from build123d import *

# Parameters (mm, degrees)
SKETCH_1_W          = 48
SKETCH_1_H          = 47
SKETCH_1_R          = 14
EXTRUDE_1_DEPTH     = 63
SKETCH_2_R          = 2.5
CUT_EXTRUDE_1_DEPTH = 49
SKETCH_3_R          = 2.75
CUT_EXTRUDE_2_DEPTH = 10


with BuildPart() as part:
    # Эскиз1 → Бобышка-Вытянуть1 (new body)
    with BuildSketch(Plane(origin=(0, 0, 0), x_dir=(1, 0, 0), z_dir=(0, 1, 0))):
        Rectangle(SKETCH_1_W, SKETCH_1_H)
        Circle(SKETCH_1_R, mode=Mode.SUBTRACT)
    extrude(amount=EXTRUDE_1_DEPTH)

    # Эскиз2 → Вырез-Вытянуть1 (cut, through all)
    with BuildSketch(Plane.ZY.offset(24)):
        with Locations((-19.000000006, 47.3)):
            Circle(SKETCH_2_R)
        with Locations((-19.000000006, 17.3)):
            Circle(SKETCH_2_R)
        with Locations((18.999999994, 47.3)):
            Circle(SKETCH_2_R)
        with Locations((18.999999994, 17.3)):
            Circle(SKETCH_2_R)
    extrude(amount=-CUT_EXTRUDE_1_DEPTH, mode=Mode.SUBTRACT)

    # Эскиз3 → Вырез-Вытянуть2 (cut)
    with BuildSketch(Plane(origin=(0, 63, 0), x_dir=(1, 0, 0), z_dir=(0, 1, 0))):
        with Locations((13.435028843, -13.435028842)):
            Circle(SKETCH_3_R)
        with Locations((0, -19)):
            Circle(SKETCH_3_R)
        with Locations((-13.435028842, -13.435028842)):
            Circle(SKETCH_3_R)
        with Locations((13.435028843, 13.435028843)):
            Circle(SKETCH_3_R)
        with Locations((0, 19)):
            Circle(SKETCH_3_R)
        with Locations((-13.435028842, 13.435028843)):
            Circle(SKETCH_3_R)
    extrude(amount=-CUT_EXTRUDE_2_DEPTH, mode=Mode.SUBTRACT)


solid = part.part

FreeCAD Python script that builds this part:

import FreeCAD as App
import Part
import Sketcher
Q = App.Units.Quantity

doc = App.newDocument("Part")
params = doc.addObject("Spreadsheet::Sheet", "Params")
for row, (alias, value) in enumerate([
    ("sketch1_diameter", "28 mm"),
    ("sketch1_width", "48 mm"),
    ("sketch1_height", "47 mm"),
    ("pad1_length", "63 mm"),
    ("sketch2_diameter", "5 mm"),
    ("sketch3_diameter", "5.5 mm"),
    ("pocket2_length", "10 mm"),
], start=1):
    params.set(f"A{row}", alias)
    params.set(f"B{row}", "=" + value)
    params.setAlias(f"B{row}", alias)

body = doc.addObject("PartDesign::Body", "Body")

sketch1 = doc.addObject("Sketcher::SketchObject", "Sketch")
body.addObject(sketch1)
sketch1.AttachmentSupport = (doc.XZ_Plane, [""])
sketch1.MapMode = "FlatFace"
sketch1.addGeometry([
    Part.LineSegment(App.Vector(-24, -24, 0), App.Vector(-24, 24, 0)),
    Part.LineSegment(App.Vector(-24, 24, 0), App.Vector(24, 24, 0)),
    Part.LineSegment(App.Vector(24, 24, 0), App.Vector(24, -24, 0)),
    Part.LineSegment(App.Vector(24, -24, 0), App.Vector(-24, -24, 0)),
    Part.Circle(App.Vector(0, 0, 0), App.Vector(0, 0, 1), 14),
], False)
sketch1.addConstraint([
    Sketcher.Constraint("Coincident", 0, 2, 1, 1),
    Sketcher.Constraint("Coincident", 1, 2, 2, 1),
    Sketcher.Constraint("Coincident", 2, 2, 3, 1),
    Sketcher.Constraint("Coincident", 3, 2, 0, 1),
    Sketcher.Constraint("Vertical", 0),
    Sketcher.Constraint("Horizontal", 1),
    Sketcher.Constraint("Vertical", 2),
    Sketcher.Constraint("Horizontal", 3),
    Sketcher.Constraint("Coincident", 4, 3, -1, 1),
    Sketcher.Constraint("Symmetric", 0, 2, 2, 2, -1, 1),
    Sketcher.Constraint("Diameter", 4, Q("28 mm")),
    Sketcher.Constraint("DistanceX", 1, 1, 1, 2, Q("48 mm")),
    Sketcher.Constraint("DistanceY", 0, 1, 0, 2, Q("47 mm")),
])
sketch1.setExpression("Constraints[10]", "Params.sketch1_diameter")
sketch1.setExpression("Constraints[11]", "Params.sketch1_width")
sketch1.setExpression("Constraints[12]", "Params.sketch1_height")
pad1 = doc.addObject("PartDesign::Pad", "Pad")
body.addObject(pad1)
pad1.Profile = sketch1
pad1.setExpression("Length", "Params.pad1_length")
pad1.Reversed = True

sketch2 = doc.addObject("Sketcher::SketchObject", "Sketch001")
body.addObject(sketch2)
sketch2.AttachmentSupport = (doc.YZ_Plane, [""])
sketch2.MapMode = "FlatFace"
sketch2.AttachmentOffset = App.Placement(App.Vector(0, 0, -24), App.Rotation())
sketch2.addGeometry([
    Part.Circle(App.Vector(47.3, -19, 0), App.Vector(0, 0, 1), 2.5),
    Part.Circle(App.Vector(17.3, -19, 0), App.Vector(0, 0, 1), 2.5),
    Part.Circle(App.Vector(47.3, 19, 0), App.Vector(0, 0, 1), 2.5),
    Part.Circle(App.Vector(17.3, 19, 0), App.Vector(0, 0, 1), 2.5),
], False)
sketch2.addConstraint([
    Sketcher.Constraint("Equal", 0, 1),
    Sketcher.Constraint("Equal", 1, 2),
    Sketcher.Constraint("Equal", 2, 3),
    Sketcher.Constraint("Symmetric", 0, 3, 2, 3, -1),
    Sketcher.Constraint("Symmetric", 1, 3, 3, 3, -1),
    Sketcher.Constraint("Horizontal", 0, 3, 1, 3),
    Sketcher.Constraint("Diameter", 0, Q("5 mm")),
    Sketcher.Constraint("DistanceY", 0, 3, -1, 1, Q("19 mm")),
    Sketcher.Constraint("DistanceX", 1, 3, 0, 3, Q("30 mm")),
    Sketcher.Constraint("DistanceX", -1, 1, 0, 3, Q("47.3 mm")),
])
sketch2.setExpression("Constraints[6]", "Params.sketch2_diameter")
pocket1 = doc.addObject("PartDesign::Pocket", "Pocket")
body.addObject(pocket1)
pocket1.Profile = sketch2
pocket1.Type = "ThroughAll"
pocket1.Reversed = True

sketch3 = doc.addObject("Sketcher::SketchObject", "Sketch002")
body.addObject(sketch3)
sketch3.AttachmentSupport = (doc.XZ_Plane, [""])
sketch3.MapMode = "FlatFace"
sketch3.AttachmentOffset = App.Placement(App.Vector(0, 0, -63), App.Rotation())
sketch3.addGeometry([
    Part.Circle(App.Vector(13.4, 13.4, 0), App.Vector(0, 0, 1), 2.8),
    Part.Circle(App.Vector(0, 19, 0), App.Vector(0, 0, 1), 2.8),
    Part.Circle(App.Vector(-13.4, 13.4, 0), App.Vector(0, 0, 1), 2.8),
    Part.Circle(App.Vector(13.4, -13.4, 0), App.Vector(0, 0, 1), 2.8),
    Part.Circle(App.Vector(0, -19, 0), App.Vector(0, 0, 1), 2.8),
    Part.Circle(App.Vector(-13.4, -13.4, 0), App.Vector(0, 0, 1), 2.8),
], False)
sketch3.addConstraint([
    Sketcher.Constraint("Equal", 0, 1),
    Sketcher.Constraint("Equal", 1, 2),
    Sketcher.Constraint("Equal", 2, 3),
    Sketcher.Constraint("Equal", 3, 4),
    Sketcher.Constraint("Equal", 4, 5),
    Sketcher.Constraint("Symmetric", 2, 3, 3, 3, -1, 1),
    Sketcher.Constraint("Symmetric", 1, 3, 4, 3, -1, 1),
    Sketcher.Constraint("Symmetric", 0, 3, 5, 3, -1, 1),
    Sketcher.Constraint("Symmetric", 0, 3, 2, 3, -2),
    Sketcher.Constraint("PointOnObject", 1, 3, -2),
    Sketcher.Constraint("Diameter", 0, Q("5.5 mm")),
    Sketcher.Constraint("DistanceY", -1, 1, 1, 3, Q("19 mm")),
    Sketcher.Constraint("DistanceX", -1, 1, 0, 3, Q("13.435029 mm")),
    Sketcher.Constraint("DistanceY", -1, 1, 0, 3, Q("13.435029 mm")),
])
sketch3.setExpression("Constraints[10]", "Params.sketch3_diameter")
pocket2 = doc.addObject("PartDesign::Pocket", "Pocket001")
body.addObject(pocket2)
pocket2.Profile = sketch3
pocket2.setExpression("Length", "Params.pocket2_length")
pocket2.Reversed = True

doc.recompute()
